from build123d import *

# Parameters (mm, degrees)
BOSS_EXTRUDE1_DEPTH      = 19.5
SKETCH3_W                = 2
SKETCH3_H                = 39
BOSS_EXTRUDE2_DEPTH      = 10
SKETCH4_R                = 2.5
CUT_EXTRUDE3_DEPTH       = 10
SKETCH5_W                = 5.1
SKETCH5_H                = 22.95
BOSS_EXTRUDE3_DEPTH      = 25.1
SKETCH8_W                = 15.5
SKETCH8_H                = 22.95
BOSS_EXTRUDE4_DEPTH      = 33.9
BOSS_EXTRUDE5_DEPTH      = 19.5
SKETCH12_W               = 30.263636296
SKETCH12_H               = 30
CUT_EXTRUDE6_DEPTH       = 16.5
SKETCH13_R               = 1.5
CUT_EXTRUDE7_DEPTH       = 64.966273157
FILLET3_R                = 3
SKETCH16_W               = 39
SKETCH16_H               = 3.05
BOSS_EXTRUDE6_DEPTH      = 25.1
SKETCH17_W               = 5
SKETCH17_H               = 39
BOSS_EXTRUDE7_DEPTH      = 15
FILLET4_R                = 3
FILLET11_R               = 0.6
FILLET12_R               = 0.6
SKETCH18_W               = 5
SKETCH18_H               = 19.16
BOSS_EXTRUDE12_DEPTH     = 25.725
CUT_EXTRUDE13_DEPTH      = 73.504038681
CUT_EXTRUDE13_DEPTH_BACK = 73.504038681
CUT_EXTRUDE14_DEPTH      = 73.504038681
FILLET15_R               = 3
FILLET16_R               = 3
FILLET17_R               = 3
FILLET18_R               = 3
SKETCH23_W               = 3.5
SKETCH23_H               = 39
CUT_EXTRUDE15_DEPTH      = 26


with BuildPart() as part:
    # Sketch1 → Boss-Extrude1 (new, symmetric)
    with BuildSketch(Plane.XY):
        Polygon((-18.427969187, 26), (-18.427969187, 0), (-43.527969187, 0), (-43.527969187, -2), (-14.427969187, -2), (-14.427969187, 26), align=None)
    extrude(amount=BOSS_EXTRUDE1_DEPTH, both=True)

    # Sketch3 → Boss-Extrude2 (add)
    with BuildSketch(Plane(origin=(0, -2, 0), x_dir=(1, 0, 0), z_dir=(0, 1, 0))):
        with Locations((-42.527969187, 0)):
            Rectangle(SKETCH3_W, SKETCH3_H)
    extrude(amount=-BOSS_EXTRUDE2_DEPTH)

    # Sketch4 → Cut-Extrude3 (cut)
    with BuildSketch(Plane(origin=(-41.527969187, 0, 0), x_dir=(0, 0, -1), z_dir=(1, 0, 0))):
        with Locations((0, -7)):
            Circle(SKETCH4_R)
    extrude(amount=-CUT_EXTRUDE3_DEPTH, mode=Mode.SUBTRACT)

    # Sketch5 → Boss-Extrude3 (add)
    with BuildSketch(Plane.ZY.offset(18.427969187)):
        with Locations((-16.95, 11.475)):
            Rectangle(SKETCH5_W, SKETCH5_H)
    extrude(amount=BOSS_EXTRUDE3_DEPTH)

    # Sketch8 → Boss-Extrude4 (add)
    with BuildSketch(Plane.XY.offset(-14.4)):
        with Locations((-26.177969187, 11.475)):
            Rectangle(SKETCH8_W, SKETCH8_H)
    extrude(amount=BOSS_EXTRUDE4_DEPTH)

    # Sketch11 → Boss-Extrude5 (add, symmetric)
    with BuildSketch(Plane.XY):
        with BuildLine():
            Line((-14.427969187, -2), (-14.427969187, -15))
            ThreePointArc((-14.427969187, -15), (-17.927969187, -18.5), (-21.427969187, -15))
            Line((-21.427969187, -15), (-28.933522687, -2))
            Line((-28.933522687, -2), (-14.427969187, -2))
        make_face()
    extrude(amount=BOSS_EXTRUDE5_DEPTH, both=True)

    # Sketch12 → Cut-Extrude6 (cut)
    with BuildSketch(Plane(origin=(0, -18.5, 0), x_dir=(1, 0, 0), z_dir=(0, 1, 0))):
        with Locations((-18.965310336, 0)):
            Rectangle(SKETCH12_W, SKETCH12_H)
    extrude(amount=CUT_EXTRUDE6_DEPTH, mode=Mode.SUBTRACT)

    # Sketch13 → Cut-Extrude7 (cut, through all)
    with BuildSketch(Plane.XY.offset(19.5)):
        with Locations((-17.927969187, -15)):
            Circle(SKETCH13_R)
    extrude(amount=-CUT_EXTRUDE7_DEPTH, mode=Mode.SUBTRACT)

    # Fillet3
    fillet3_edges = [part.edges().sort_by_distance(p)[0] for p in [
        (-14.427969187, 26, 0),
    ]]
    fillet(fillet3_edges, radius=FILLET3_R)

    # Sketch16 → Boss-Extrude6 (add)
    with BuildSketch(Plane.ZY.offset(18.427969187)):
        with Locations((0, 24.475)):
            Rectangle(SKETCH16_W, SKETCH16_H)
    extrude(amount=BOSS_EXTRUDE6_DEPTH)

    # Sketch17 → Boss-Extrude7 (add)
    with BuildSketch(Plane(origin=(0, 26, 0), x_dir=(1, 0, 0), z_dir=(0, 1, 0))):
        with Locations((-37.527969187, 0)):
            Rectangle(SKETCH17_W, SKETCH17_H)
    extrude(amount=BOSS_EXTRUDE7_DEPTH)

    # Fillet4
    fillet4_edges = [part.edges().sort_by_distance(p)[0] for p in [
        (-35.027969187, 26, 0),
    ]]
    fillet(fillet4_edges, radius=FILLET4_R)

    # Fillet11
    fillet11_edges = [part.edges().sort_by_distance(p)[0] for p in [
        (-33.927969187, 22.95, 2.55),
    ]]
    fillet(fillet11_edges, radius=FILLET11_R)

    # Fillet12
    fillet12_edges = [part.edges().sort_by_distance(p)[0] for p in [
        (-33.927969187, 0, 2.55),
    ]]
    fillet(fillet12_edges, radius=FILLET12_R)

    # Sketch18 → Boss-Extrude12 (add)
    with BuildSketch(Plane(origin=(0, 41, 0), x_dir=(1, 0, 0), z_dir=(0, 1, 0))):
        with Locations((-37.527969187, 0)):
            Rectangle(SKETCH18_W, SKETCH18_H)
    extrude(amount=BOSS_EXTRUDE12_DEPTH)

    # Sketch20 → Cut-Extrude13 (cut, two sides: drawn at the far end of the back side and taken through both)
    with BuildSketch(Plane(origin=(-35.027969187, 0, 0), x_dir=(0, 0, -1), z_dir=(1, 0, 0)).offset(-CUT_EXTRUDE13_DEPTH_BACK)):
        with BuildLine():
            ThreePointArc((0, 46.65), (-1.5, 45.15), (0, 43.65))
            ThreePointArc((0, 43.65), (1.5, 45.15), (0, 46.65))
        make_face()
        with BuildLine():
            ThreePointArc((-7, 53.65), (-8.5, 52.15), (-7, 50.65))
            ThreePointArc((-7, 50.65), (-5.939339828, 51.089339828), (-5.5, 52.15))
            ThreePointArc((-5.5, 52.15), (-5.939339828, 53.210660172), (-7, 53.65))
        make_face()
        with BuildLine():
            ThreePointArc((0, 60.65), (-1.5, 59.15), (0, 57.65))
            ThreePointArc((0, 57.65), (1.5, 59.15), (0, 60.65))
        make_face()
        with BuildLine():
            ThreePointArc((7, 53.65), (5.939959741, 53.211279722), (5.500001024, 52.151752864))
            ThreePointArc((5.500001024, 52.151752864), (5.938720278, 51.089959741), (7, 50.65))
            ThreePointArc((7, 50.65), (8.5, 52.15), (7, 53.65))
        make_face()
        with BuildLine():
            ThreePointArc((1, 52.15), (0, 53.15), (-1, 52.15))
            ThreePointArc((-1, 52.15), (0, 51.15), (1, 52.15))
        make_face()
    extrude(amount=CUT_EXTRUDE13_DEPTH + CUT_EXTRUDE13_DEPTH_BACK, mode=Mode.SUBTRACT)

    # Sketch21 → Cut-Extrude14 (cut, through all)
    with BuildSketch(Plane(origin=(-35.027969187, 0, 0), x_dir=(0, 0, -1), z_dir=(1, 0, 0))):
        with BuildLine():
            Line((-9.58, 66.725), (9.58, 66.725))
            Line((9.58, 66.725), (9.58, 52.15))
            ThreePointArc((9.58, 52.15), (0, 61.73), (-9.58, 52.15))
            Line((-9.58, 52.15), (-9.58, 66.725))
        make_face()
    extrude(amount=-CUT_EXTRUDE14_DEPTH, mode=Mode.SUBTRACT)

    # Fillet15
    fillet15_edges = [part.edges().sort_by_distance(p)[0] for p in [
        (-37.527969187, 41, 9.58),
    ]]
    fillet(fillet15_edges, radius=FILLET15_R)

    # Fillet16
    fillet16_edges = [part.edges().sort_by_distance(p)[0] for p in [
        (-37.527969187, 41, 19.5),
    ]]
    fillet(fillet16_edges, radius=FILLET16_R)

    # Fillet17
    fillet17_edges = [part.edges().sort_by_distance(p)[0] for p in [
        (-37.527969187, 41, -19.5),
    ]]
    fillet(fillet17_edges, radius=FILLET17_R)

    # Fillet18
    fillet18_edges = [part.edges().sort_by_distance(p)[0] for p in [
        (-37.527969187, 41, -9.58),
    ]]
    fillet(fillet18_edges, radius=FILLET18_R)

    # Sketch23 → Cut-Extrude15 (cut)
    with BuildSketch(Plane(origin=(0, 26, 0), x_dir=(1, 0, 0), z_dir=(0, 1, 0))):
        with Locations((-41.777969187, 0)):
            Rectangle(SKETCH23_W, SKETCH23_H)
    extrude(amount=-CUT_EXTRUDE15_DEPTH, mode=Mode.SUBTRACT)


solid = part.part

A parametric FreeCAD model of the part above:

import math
import FreeCAD as App
import Part
import Sketcher
from FreeCAD import Vector
Q = App.Units.Quantity


def edges_at(feature, points):
    """Names of the edges that pass closest to the given points."""
    edges = feature.Shape.Edges
    near = lambda p: min(range(len(edges)), key=lambda i: edges[i].distToShape(Part.Vertex(*p))[0])
    return sorted({f"Edge{near(p) + 1}" for p in points})


def add_polygon(sketch, points):
    """Adds a closed chain of lines whose ends are joined by coincident constraints."""
    first, n = sketch.GeometryCount, len(points)
    for a, b in zip(points, points[1:] + points[:1]):
        sketch.addGeometry(Part.LineSegment(App.Vector(*a, 0), App.Vector(*b, 0)), False)
    for i in range(n):
        sketch.addConstraint(Sketcher.Constraint("Coincident", first + i, 2, first + (i + 1) % n, 1))

doc = App.newDocument("Part")
body = doc.addObject("PartDesign::Body", "Body")

# Sketch on XY plane
sketch1 = doc.addObject("Sketcher::SketchObject", "Sketch")
body.addObject(sketch1)
sketch1.AttachmentSupport = (doc.XY_Plane, [""])
sketch1.MapMode = "FlatFace"
add_polygon(sketch1, [(-18.4, 26), (-18.4, 0), (-43.5, 0), (-43.5, -2), (-14.4, -2), (-14.4, 26)])  # lines 0-5
sketch1.addConstraint([
    Sketcher.Constraint("Vertical", 0),
    Sketcher.Constraint("Horizontal", 1),
    Sketcher.Constraint("Vertical", 2),
    Sketcher.Constraint("Horizontal", 3),
    Sketcher.Constraint("Vertical", 4),
    Sketcher.Constraint("Horizontal", 5),
    Sketcher.Constraint("PointOnObject", 0, 2, -1),
    Sketcher.Constraint("DistanceX", 5, 2, 5, 1, 4.0),
    Sketcher.Constraint("DistanceY", 0, 2, 0, 1, 26.0),
    Sketcher.Constraint("DistanceY", 2, 2, 2, 1, 2.0),
    Sketcher.Constraint("DistanceX", 1, 2, 1, 1, 25.1),
    Sketcher.Constraint("DistanceX", 0, 2, -1, 1, 18.427969),
])
pad1 = doc.addObject("PartDesign::Pad", "Pad")
body.addObject(pad1)
pad1.Profile = sketch1
pad1.Length = 39
pad1.Midplane = True

# Sketch on XZ plane
sketch2 = doc.addObject("Sketcher::SketchObject", "Sketch001")
body.addObject(sketch2)
sketch2.AttachmentSupport = (doc.XZ_Plane, [""])
sketch2.MapMode = "FlatFace"
sketch2.AttachmentOffset = App.Placement(Vector(0, 0, 2), App.Rotation())
add_polygon(sketch2, [(-43.5, -19.5), (-43.5, 19.5), (-41.5, 19.5), (-41.5, -19.5)])  # lines 0-3
sketch2.addConstraint([
    Sketcher.Constraint("Vertical", 0),
    Sketcher.Constraint("Horizontal", 1),
    Sketcher.Constraint("Vertical", 2),
    Sketcher.Constraint("Horizontal", 3),
    Sketcher.Constraint("DistanceX", 1, 1, 1, 2, 2.0),
    Sketcher.Constraint("DistanceY", 0, 1, 0, 2, 39.0),
    Sketcher.Constraint("DistanceY", -1, 1, 0, 2, 19.5),
    Sketcher.Constraint("DistanceX", 0, 2, -1, 1, 43.527969),
])
pad2 = doc.addObject("PartDesign::Pad", "Pad001")
body.addObject(pad2)
pad2.Profile = sketch2
pad2.Length = 10

# Sketch on YZ plane
sketch3 = doc.addObject("Sketcher::SketchObject", "Sketch002")
body.addObject(sketch3)
sketch3.AttachmentSupport = (doc.YZ_Plane, [""])
sketch3.MapMode = "FlatFace"
sketch3.AttachmentOffset = App.Placement(Vector(0, 0, -41.527969), App.Rotation())
sketch3.addGeometry(Part.Circle(Vector(-7, 0, 0), Vector(0, 0, 1), 2.5), False)
sketch3.addConstraint([
    Sketcher.Constraint("PointOnObject", 0, 3, -1),
    Sketcher.Constraint("Diameter", 0, 5.0),
    Sketcher.Constraint("DistanceX", 0, 3, -1, 1, 7.0),
])
pocket1 = doc.addObject("PartDesign::Pocket", "Pocket")
body.addObject(pocket1)
pocket1.Profile = sketch3
pocket1.Length = 10

# Sketch on YZ plane
sketch4 = doc.addObject("Sketcher::SketchObject", "Sketch003")
body.addObject(sketch4)
sketch4.AttachmentSupport = (doc.YZ_Plane, [""])
sketch4.MapMode = "FlatFace"
sketch4.AttachmentOffset = App.Placement(Vector(0, 0, -18.427969), App.Rotation())
add_polygon(sketch4, [(23, -20), (0, -20), (0, -14), (23, -14)])  # lines 0-3
sketch4.addConstraint([
    Sketcher.Constraint("Horizontal", 0),
    Sketcher.Constraint("Vertical", 1),
    Sketcher.Constraint("Horizontal", 2),
    Sketcher.Constraint("Vertical", 3),
    Sketcher.Constraint("PointOnObject", 0, 2, -2),
    Sketcher.Constraint("DistanceY", 1, 1, 1, 2, 5.1),
    Sketcher.Constraint("DistanceX", 0, 2, 0, 1, 22.95),
    Sketcher.Constraint("DistanceY", 0, 2, -1, 1, 19.5),
])
pad3 = doc.addObject("PartDesign::Pad", "Pad002")
body.addObject(pad3)
pad3.Profile = sketch4
pad3.Length = 25.1
pad3.Reversed = True

# Sketch on XY plane
sketch5 = doc.addObject("Sketcher::SketchObject", "Sketch004")
body.addObject(sketch5)
sketch5.AttachmentSupport = (doc.XY_Plane, [""])
sketch5.MapMode = "FlatFace"
sketch5.AttachmentOffset = App.Placement(Vector(0, 0, -14.4), App.Rotation())
add_polygon(sketch5, [(-34, 23), (-34, 0), (-18, 0), (-18, 23)])  # lines 0-3
sketch5.addConstraint([
    Sketcher.Constraint("Vertical", 0),
    Sketcher.Constraint("Horizontal", 1),
    Sketcher.Constraint("Vertical", 2),
    Sketcher.Constraint("Horizontal", 3),
    Sketcher.Constraint("PointOnObject", 0, 2, -1),
    Sketcher.Constraint("DistanceX", 1, 1, 1, 2, 15.5),
    Sketcher.Constraint("DistanceY", 0, 2, 0, 1, 22.95),
    Sketcher.Constraint("DistanceX", 0, 2, -1, 1, 33.927969),
])
pad4 = doc.addObject("PartDesign::Pad", "Pad003")
body.addObject(pad4)
pad4.Profile = sketch5
pad4.Length = 33.9

# Sketch on XY plane
sketch6 = doc.addObject("Sketcher::SketchObject", "Sketch005")
body.addObject(sketch6)
sketch6.AttachmentSupport = (doc.XY_Plane, [""])
sketch6.MapMode = "FlatFace"
sketch6.addGeometry([
    Part.LineSegment(Vector(-14.4, -15, 0), Vector(-14.4, -2, 0)),
    Part.LineSegment(Vector(-14.4, -2, 0), Vector(-28.9, -2, 0)),
    Part.LineSegment(Vector(-28.9, -2, 0), Vector(-21.4, -15, 0)),
    Part.ArcOfCircle(Part.Circle(Vector(-17.9, -15, 0), Vector(0, 0, 1), 3.5), math.radians(180), math.radians(360)),
], False)
sketch6.addConstraint([
    Sketcher.Constraint("Coincident", 0, 2, 1, 1),
    Sketcher.Constraint("Coincident", 1, 2, 2, 1),
    Sketcher.Constraint("Coincident", 2, 2, 3, 1),
    Sketcher.Constraint("Tangent", 3, 2, 0, 1),
    Sketcher.Constraint("Vertical", 0),
    Sketcher.Constraint("Horizontal", 1),
    Sketcher.Constraint("Horizontal", 3, 3, 2, 2),
    Sketcher.Constraint("Radius", 3, 3.5),
    Sketcher.Constraint("DistanceY", 0, 1, 0, 2, 13.0),
    Sketcher.Constraint("Angle", 2, Q("-60 deg")),
    Sketcher.Constraint("DistanceY", 3, 3, -1, 1, 15.0),
    Sketcher.Constraint("DistanceX", 3, 3, -1, 1, 17.927969),
])
pad5 = doc.addObject("PartDesign::Pad", "Pad004")
body.addObject(pad5)
pad5.Profile = sketch6
pad5.Length = 39
pad5.Midplane = True

# Sketch on XZ plane
sketch7 = doc.addObject("Sketcher::SketchObject", "Sketch006")
body.addObject(sketch7)
sketch7.AttachmentSupport = (doc.XZ_Plane, [""])
sketch7.MapMode = "FlatFace"
sketch7.AttachmentOffset = App.Placement(Vector(0, 0, 18.5), App.Rotation())
add_polygon(sketch7, [(-34, -15), (-34, 15), (-4, 15), (-4, -15)])  # lines 0-3
sketch7.addConstraint([
    Sketcher.Constraint("Vertical", 0),
    Sketcher.Constraint("Horizontal", 1),
    Sketcher.Constraint("Vertical", 2),
    Sketcher.Constraint("Horizontal", 3),
    Sketcher.Constraint("DistanceY", 0, 1, 0, 2, 30.0),
    Sketcher.Constraint("DistanceY", -1, 1, 0, 2, 15.0),
    Sketcher.Constraint("DistanceX", 1, 1, 1, 2, 30.263636),
    Sketcher.Constraint("DistanceX", 0, 2, -1, 1, 34.097128),
])
pocket2 = doc.addObject("PartDesign::Pocket", "Pocket001")
body.addObject(pocket2)
pocket2.Profile = sketch7
pocket2.Length = 16.5

# Sketch on XY plane
sketch8 = doc.addObject("Sketcher::SketchObject", "Sketch007")
body.addObject(sketch8)
sketch8.AttachmentSupport = (doc.XY_Plane, [""])
sketch8.MapMode = "FlatFace"
sketch8.AttachmentOffset = App.Placement(Vector(0, 0, 19.5), App.Rotation())
sketch8.addGeometry(Part.Circle(Vector(-17.9, -15, 0), Vector(0, 0, 1), 1.5), False)
sketch8.addConstraint([
    Sketcher.Constraint("Diameter", 0, 3.0),
    Sketcher.Constraint("DistanceY", 0, 3, -1, 1, 15.0),
    Sketcher.Constraint("DistanceX", 0, 3, -1, 1, 17.927969),
])
pocket3 = doc.addObject("PartDesign::Pocket", "Pocket002")
body.addObject(pocket3)
pocket3.Profile = sketch8
pocket3.Type = "ThroughAll"
doc.recompute()

fillet = doc.addObject("PartDesign::Fillet", "Fillet")
body.addObject(fillet)
fillet.Base = (pocket3, edges_at(pocket3, [(-14.428, 26, 0)]))
fillet.Radius = 3

# Sketch on YZ plane
sketch9 = doc.addObject("Sketcher::SketchObject", "Sketch008")
body.addObject(sketch9)
sketch9.AttachmentSupport = (doc.YZ_Plane, [""])
sketch9.MapMode = "FlatFace"
sketch9.AttachmentOffset = App.Placement(Vector(0, 0, -18.427969), App.Rotation())
add_polygon(sketch9, [(26, -19.5), (22.9, -19.5), (22.9, 19.5), (26, 19.5)])  # lines 0-3
sketch9.addConstraint([
    Sketcher.Constraint("Horizontal", 0),
    Sketcher.Constraint("Vertical", 1),
    Sketcher.Constraint("Horizontal", 2),
    Sketcher.Constraint("Vertical", 3),
    Sketcher.Constraint("DistanceY", 1, 1, 1, 2, 39.0),
    Sketcher.Constraint("DistanceX", -1, 1, 2, 2, 26.0),
    Sketcher.Constraint("DistanceX", 0, 2, 0, 1, 3.05),
    Sketcher.Constraint("DistanceY", 0, 2, -1, 1, 19.5),
])
pad6 = doc.addObject("PartDesign::Pad", "Pad005")
body.addObject(pad6)
pad6.Profile = sketch9
pad6.Length = 25.1
pad6.Reversed = True

# Sketch on XZ plane
sketch10 = doc.addObject("Sketcher::SketchObject", "Sketch009")
body.addObject(sketch10)
sketch10.AttachmentSupport = (doc.XZ_Plane, [""])
sketch10.MapMode = "FlatFace"
sketch10.AttachmentOffset = App.Placement(Vector(0, 0, -26), App.Rotation())
add_polygon(sketch10, [(-40, -20), (-40, 20), (-35, 20), (-35, -20)])  # lines 0-3
sketch10.addConstraint([
    Sketcher.Constraint("Vertical", 0),
    Sketcher.Constraint("Horizontal", 1),
    Sketcher.Constraint("Vertical", 2),
    Sketcher.Constraint("Horizontal", 3),
    Sketcher.Constraint("DistanceX", 1, 1, 1, 2, 5.0),
    Sketcher.Constraint("DistanceY", 0, 1, 0, 2, 39.0),
    Sketcher.Constraint("DistanceY", -1, 1, 0, 2, 19.5),
    Sketcher.Constraint("DistanceX", 0, 2, -1, 1, 40.027969),
])
pad7 = doc.addObject("PartDesign::Pad", "Pad006")
body.addObject(pad7)
pad7.Profile = sketch10
pad7.Length = 15
pad7.Reversed = True
doc.recompute()

fillet2 = doc.addObject("PartDesign::Fillet", "Fillet001")
body.addObject(fillet2)
fillet2.Base = (pad7, edges_at(pad7, [(-35.028, 26, 0)]))
fillet2.Radius = 3
doc.recompute()

fillet3 = doc.addObject("PartDesign::Fillet", "Fillet002")
body.addObject(fillet3)
fillet3.Base = (fillet2, edges_at(fillet2, [(-33.928, 22.95, 2.55)]))
fillet3.Radius = 0.6
doc.recompute()

fillet4 = doc.addObject("PartDesign::Fillet", "Fillet003")
body.addObject(fillet4)
fillet4.Base = (fillet3, edges_at(fillet3, [(-33.928, 0, 2.55)]))
fillet4.Radius = 0.6

# Sketch on XZ plane
sketch11 = doc.addObject("Sketcher::SketchObject", "Sketch010")
body.addObject(sketch11)
sketch11.AttachmentSupport = (doc.XZ_Plane, [""])
sketch11.MapMode = "FlatFace"
sketch11.AttachmentOffset = App.Placement(Vector(0, 0, -41), App.Rotation())
add_polygon(sketch11, [(-40, -10), (-40, 10), (-35, 10), (-35, -10)])  # lines 0-3
sketch11.addConstraint([
    Sketcher.Constraint("Vertical", 0),
    Sketcher.Constraint("Horizontal", 1),
    Sketcher.Constraint("Vertical", 2),
    Sketcher.Constraint("Horizontal", 3),
    Sketcher.Constraint("DistanceX", 1, 1, 1, 2, 5.0),
    Sketcher.Constraint("DistanceY", 0, 1, 0, 2, 19.16),
    Sketcher.Constraint("DistanceY", -1, 1, 0, 2, 9.58),
    Sketcher.Constraint("DistanceX", 0, 2, -1, 1, 40.027969),
])
pad8 = doc.addObject("PartDesign::Pad", "Pad007")
body.addObject(pad8)
pad8.Profile = sketch11
pad8.Length = 25.725
pad8.Reversed = True

# Sketch on YZ plane
sketch12 = doc.addObject("Sketcher::SketchObject", "Sketch011")
body.addObject(sketch12)
sketch12.AttachmentSupport = (doc.YZ_Plane, [""])
sketch12.MapMode = "FlatFace"
sketch12.AttachmentOffset = App.Placement(Vector(0, 0, -35.027969), App.Rotation())
sketch12.addGeometry([
    Part.Circle(Vector(45.1, 0, 0), Vector(0, 0, 1), 1.5),  # 0
    Part.ArcOfCircle(Part.Circle(Vector(52.1, 7, 0), Vector(0, 0, 1), 1.5), math.radians(0), math.radians(180)),  # 1
    Part.ArcOfCircle(Part.Circle(Vector(52.1, 7, 0), Vector(0, 0, 1), 1.5), math.radians(180), math.radians(270)),  # 2
    Part.ArcOfCircle(Part.Circle(Vector(52.2, 7, 0), Vector(0, 0, 1), 1.5), math.radians(-90), math.radians(0)),  # 3
    Part.Circle(Vector(59.1, 0, 0), Vector(0, 0, 1), 1.5),  # 4
    Part.ArcOfCircle(Part.Circle(Vector(52.1, -7, 0), Vector(0, 0, 1), 1.5), math.radians(0), math.radians(90)),  # 5
    Part.ArcOfCircle(Part.Circle(Vector(52.2, -7, 0), Vector(0, 0, 1), 1.5), math.radians(90), math.radians(180)),  # 6
    Part.ArcOfCircle(Part.Circle(Vector(52.1, -7, 0), Vector(0, 0, 1), 1.5), math.radians(180), math.radians(360)),  # 7
    Part.Circle(Vector(52.1, 0, 0), Vector(0, 0, 1), 1),  # 8
], False)
sketch12.addConstraint([
    Sketcher.Constraint("Tangent", 1, 2, 2, 1),
    Sketcher.Constraint("Tangent", 2, 2, 3, 1),
    Sketcher.Constraint("Tangent", 3, 2, 1, 1),
    Sketcher.Constraint("Tangent", 5, 2, 6, 1),
    Sketcher.Constraint("Tangent", 6, 2, 7, 1),
    Sketcher.Constraint("Tangent", 7, 2, 5, 1),
    Sketcher.Constraint("Equal", 0, 1),
    Sketcher.Constraint("Equal", 3, 4),
    Sketcher.Constraint("Equal", 4, 5),
    Sketcher.Constraint("Symmetric", 1, 3, 5, 3, -1),
    Sketcher.Constraint("PointOnObject", 0, 3, -1),
    Sketcher.Constraint("PointOnObject", 4, 3, -1),
    Sketcher.Constraint("PointOnObject", 8, 3, -1),
    Sketcher.Constraint("Horizontal", 3, 3, 1, 2),
    Sketcher.Constraint("Horizontal", 1, 2, 3, 2),
    Sketcher.Constraint("Horizontal", 7, 3, 6, 2),
    Sketcher.Constraint("Horizontal", 6, 2, 7, 2),
    Sketcher.Constraint("Vertical", 7, 3, 8, 3),
    Sketcher.Constraint("Vertical", 8, 3, 2, 2),
    Sketcher.Constraint("Diameter", 0, 3.0),
    Sketcher.Constraint("Diameter", 8, 2.0),
    Sketcher.Constraint("DistanceY", -1, 1, 1, 3, 7.0),
    Sketcher.Constraint("DistanceX", 0, 3, 1, 3, 7.0),
    Sketcher.Constraint("DistanceX", 3, 3, 4, 3, 7.0),
    Sketcher.Constraint("DistanceX", -1, 1, 0, 3, 45.15),
    Sketcher.Constraint("DistanceX", -1, 1, 5, 2, 52.151753),
])
pocket4 = doc.addObject("PartDesign::Pocket", "Pocket003")
body.addObject(pocket4)
pocket4.Profile = sketch12
pocket4.Type = "ThroughAll"
pocket4.Midplane = True

# Sketch on YZ plane
sketch13 = doc.addObject("Sketcher::SketchObject", "Sketch012")
body.addObject(sketch13)
sketch13.AttachmentSupport = (doc.YZ_Plane, [""])
sketch13.MapMode = "FlatFace"
sketch13.AttachmentOffset = App.Placement(Vector(0, 0, -35.027969), App.Rotation())
sketch13.addGeometry([
    Part.LineSegment(Vector(67, -10, 0), Vector(67, 10, 0)),
    Part.LineSegment(Vector(67, 10, 0), Vector(52, 10, 0)),
    Part.ArcOfCircle(Part.Circle(Vector(52, 0, 0), Vector(0, 0, 1), 10), math.radians(-90), math.radians(90)),
    Part.LineSegment(Vector(52, -10, 0), Vector(67, -10, 0)),
], False)
sketch13.addConstraint([
    Sketcher.Constraint("Coincident", 0, 2, 1, 1),
    Sketcher.Constraint("Tangent", 1, 2, 2, 2),
    Sketcher.Constraint("Tangent", 2, 1, 3, 1),
    Sketcher.Constraint("Coincident", 3, 2, 0, 1),
    Sketcher.Constraint("Vertical", 0),
    Sketcher.Constraint("Horizontal", 1),
    Sketcher.Constraint("Horizontal", 3),
    Sketcher.Constraint("PointOnObject", 2, 3, -1),
    Sketcher.Constraint("Radius", 2, 9.58),
    Sketcher.Constraint("DistanceX", 1, 2, 1, 1, 14.575),
    Sketcher.Constraint("DistanceX", -1, 1, 2, 3, 52.15),
])
pocket5 = doc.addObject("PartDesign::Pocket", "Pocket004")
body.addObject(pocket5)
pocket5.Profile = sketch13
pocket5.Type = "ThroughAll"
doc.recompute()

fillet5 = doc.addObject("PartDesign::Fillet", "Fillet004")
body.addObject(fillet5)
fillet5.Base = (pocket5, edges_at(pocket5, [(-37.528, 41, 9.58)]))
fillet5.Radius = 3
doc.recompute()

fillet6 = doc.addObject("PartDesign::Fillet", "Fillet005")
body.addObject(fillet6)
fillet6.Base = (fillet5, edges_at(fillet5, [(-37.528, 41, 19.5)]))
fillet6.Radius = 3
doc.recompute()

fillet7 = doc.addObject("PartDesign::Fillet", "Fillet006")
body.addObject(fillet7)
fillet7.Base = (fillet6, edges_at(fillet6, [(-37.528, 41, -19.5)]))
fillet7.Radius = 3
doc.recompute()

fillet8 = doc.addObject("PartDesign::Fillet", "Fillet007")
body.addObject(fillet8)
fillet8.Base = (fillet7, edges_at(fillet7, [(-37.528, 41, -9.58)]))
fillet8.Radius = 3

# Sketch on XZ plane
sketch14 = doc.addObject("Sketcher::SketchObject", "Sketch013")
body.addObject(sketch14)
sketch14.AttachmentSupport = (doc.XZ_Plane, [""])
sketch14.MapMode = "FlatFace"
sketch14.AttachmentOffset = App.Placement(Vector(0, 0, -26), App.Rotation())
add_polygon(sketch14, [(-43.5, -19.5), (-43.5, 19.5), (-40, 19.5), (-40, -19.5)])  # lines 0-3
sketch14.addConstraint([
    Sketcher.Constraint("Vertical", 0),
    Sketcher.Constraint("Horizontal", 1),
    Sketcher.Constraint("Vertical", 2),
    Sketcher.Constraint("Horizontal", 3),
    Sketcher.Constraint("DistanceY", 0, 1, 0, 2, 39.0),
    Sketcher.Constraint("DistanceX", 1, 1, 1, 2, 3.5),
    Sketcher.Constraint("DistanceY", -1, 1, 0, 2, 19.5),
    Sketcher.Constraint("DistanceX", 0, 2, -1, 1, 43.527969),
])
pocket6 = doc.addObject("PartDesign::Pocket", "Pocket005")
body.addObject(pocket6)
pocket6.Profile = sketch14
pocket6.Length = 26
pocket6.Reversed = True

doc.recompute()
